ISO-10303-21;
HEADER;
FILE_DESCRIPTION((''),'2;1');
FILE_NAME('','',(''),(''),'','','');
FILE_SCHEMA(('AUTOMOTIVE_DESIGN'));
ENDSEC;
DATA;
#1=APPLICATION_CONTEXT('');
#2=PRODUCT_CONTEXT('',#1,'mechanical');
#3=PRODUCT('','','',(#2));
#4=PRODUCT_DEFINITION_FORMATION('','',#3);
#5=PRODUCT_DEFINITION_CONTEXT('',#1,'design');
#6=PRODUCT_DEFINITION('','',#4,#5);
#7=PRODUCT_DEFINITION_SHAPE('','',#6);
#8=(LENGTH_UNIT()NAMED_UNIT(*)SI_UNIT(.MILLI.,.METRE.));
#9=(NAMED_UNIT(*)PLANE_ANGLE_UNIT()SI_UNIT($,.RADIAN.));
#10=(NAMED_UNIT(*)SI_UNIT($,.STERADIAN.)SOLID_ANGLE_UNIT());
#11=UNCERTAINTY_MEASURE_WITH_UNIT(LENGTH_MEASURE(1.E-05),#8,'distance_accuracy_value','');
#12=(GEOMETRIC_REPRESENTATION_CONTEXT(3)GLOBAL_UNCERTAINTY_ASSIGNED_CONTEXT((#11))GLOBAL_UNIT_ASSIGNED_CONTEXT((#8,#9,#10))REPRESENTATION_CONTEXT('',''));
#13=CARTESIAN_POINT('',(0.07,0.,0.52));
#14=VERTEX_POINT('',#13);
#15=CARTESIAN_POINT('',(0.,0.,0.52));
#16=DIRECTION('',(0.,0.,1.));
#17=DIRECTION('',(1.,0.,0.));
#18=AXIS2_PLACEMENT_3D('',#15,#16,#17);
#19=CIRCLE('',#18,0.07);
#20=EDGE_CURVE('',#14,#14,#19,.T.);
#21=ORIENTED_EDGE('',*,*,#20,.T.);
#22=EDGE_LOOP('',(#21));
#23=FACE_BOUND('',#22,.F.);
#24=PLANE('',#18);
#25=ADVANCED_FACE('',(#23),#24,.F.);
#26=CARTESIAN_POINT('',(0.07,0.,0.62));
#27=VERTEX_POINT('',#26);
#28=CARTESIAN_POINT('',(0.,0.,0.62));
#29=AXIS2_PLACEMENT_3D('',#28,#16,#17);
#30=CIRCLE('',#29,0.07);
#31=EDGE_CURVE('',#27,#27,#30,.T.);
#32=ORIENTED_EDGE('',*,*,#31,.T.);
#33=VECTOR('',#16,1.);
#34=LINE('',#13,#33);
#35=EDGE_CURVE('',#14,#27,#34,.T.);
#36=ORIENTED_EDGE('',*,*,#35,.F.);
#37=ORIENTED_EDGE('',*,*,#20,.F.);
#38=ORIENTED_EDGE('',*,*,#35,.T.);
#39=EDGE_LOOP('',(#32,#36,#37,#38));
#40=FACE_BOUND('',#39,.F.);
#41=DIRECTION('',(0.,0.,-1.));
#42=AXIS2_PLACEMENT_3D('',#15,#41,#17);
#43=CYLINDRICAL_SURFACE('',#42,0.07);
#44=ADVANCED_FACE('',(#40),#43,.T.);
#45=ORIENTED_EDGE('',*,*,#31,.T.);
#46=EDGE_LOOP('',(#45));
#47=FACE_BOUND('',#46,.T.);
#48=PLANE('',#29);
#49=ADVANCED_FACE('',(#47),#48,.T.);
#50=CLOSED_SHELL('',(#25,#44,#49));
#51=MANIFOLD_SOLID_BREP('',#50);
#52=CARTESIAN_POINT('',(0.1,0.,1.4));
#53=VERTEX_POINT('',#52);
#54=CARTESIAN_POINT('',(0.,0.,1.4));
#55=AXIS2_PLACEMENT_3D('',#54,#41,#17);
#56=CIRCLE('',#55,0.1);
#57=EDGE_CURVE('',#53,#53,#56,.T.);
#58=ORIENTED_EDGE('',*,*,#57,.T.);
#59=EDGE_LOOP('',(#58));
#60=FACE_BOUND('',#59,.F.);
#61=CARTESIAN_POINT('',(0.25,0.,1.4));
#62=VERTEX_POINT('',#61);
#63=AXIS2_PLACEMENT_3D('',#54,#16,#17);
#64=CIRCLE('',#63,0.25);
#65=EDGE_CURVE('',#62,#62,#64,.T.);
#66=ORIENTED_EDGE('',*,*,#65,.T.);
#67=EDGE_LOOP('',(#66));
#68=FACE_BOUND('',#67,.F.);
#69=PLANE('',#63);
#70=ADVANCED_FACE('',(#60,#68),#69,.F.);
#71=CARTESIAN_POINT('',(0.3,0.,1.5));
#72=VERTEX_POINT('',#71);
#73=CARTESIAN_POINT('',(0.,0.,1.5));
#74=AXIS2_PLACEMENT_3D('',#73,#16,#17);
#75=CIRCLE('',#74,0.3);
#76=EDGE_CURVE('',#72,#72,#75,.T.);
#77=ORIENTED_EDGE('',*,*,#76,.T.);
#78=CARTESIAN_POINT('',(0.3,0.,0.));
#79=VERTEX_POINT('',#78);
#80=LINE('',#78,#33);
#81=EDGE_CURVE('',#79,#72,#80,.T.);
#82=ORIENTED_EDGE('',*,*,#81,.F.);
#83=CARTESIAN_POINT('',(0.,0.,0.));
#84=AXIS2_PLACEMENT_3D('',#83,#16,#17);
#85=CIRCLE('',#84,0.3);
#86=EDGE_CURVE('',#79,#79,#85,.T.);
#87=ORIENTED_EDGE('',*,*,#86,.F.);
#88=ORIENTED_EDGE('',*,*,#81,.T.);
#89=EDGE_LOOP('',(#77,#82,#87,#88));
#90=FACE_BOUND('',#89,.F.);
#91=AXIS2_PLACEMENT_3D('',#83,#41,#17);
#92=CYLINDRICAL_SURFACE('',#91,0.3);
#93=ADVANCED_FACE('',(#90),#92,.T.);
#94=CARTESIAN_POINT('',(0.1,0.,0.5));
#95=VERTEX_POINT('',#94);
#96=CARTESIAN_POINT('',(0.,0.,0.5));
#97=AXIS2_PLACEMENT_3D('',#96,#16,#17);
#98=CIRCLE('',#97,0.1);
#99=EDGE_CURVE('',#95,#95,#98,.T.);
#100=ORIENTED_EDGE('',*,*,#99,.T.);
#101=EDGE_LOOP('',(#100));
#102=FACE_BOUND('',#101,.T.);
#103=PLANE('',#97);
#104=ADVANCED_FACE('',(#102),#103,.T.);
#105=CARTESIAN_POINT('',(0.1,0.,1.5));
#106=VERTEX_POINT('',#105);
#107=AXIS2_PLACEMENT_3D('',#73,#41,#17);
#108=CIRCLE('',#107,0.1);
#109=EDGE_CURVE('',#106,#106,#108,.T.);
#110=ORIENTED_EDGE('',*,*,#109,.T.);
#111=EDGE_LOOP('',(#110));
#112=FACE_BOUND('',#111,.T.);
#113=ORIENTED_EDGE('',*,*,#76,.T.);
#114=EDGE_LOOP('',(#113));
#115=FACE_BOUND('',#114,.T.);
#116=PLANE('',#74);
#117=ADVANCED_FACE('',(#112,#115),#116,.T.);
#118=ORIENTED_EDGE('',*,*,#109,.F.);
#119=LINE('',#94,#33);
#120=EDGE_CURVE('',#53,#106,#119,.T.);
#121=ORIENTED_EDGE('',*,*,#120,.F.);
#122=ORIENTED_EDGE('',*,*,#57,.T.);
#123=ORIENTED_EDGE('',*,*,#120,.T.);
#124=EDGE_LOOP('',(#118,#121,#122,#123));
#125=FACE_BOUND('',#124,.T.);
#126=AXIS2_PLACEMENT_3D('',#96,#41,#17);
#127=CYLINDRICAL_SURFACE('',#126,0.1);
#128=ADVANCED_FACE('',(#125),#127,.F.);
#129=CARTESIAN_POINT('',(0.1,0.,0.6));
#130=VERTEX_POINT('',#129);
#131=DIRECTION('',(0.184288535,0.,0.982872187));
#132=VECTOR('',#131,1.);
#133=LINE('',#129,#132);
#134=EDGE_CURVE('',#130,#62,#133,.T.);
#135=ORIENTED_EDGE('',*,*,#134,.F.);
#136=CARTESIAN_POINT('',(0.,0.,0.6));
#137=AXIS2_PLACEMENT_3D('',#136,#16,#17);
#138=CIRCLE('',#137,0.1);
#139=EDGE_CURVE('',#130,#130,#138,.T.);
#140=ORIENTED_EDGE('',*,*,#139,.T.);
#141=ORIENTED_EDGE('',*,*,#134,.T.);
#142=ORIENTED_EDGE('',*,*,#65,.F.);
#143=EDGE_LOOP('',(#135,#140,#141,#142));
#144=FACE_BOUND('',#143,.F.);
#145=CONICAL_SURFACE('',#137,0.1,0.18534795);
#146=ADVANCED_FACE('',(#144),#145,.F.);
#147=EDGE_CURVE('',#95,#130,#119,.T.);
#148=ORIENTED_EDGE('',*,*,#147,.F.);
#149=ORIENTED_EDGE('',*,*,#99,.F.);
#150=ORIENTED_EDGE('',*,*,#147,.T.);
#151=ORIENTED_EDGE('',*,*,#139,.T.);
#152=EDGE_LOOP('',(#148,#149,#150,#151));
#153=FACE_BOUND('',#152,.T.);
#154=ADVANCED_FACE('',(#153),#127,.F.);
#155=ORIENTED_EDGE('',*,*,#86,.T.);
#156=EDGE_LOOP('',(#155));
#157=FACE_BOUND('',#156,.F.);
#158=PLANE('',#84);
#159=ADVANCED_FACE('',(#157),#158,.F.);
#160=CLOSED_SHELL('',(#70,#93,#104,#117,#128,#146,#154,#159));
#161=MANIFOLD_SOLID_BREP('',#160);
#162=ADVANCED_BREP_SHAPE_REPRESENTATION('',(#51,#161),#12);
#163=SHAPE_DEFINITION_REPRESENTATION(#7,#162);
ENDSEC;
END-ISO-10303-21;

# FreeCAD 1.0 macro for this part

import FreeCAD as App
import Part
import Sketcher

doc = App.newDocument("Part")
body = doc.addObject("PartDesign::Body", "Body")

# Sketch on XY plane
sketch1 = body.newObject("Sketcher::SketchObject", "Sketch")
sketch1.AttachmentSupport = (doc.getObject("XY_Plane"), [""])
sketch1.MapMode = "FlatFace"
sketch1.AttachmentOffset = App.Placement(App.Vector(0, 0, 0.52), App.Rotation())
sketch1.addGeometry(Part.Circle(App.Vector(0, 0, 0), App.Vector(0, 0, 1), 0.07), False)
sketch1.addConstraint([
    Sketcher.Constraint("Coincident", 0, 3, -1, 1),
    Sketcher.Constraint("Diameter", 0, 0.14),
])
pad1 = body.newObject("PartDesign::Pad", "Pad")
pad1.Profile = sketch1
pad1.Length = 0.1
body2 = doc.addObject("PartDesign::Body", "Body001")

# Sketch on XY plane
sketch2 = body2.newObject("Sketcher::SketchObject", "Sketch001")
sketch2.AttachmentSupport = (doc.getObject("XY_Plane001"), [""])
sketch2.MapMode = "FlatFace"
sketch2.AttachmentOffset = App.Placement(App.Vector(0, 0, 0.5), App.Rotation())
sketch2.addGeometry(Part.Circle(App.Vector(0, 0, 0), App.Vector(0, 0, 1), 0.1), False)
sketch2.addConstraint([
    Sketcher.Constraint("Coincident", 0, 3, -1, 1),
    Sketcher.Constraint("Diameter", 0, 0.2),
])
pad2 = body2.newObject("PartDesign::Pad", "Pad001")
pad2.Profile = sketch2
pad2.Length = 2
body3 = doc.addObject("PartDesign::Body", "Body002")

# Sketch on XZ plane
sketch3 = body3.newObject("Sketcher::SketchObject", "Sketch002")
sketch3.AttachmentSupport = (doc.getObject("XZ_Plane002"), [""])
sketch3.MapMode = "FlatFace"
sketch3.addGeometry([
    Part.LineSegment(App.Vector(0, 0.6, 0), App.Vector(0.1, 0.6, 0)),
    Part.LineSegment(App.Vector(0.1, 0.6, 0), App.Vector(0.25, 1.4, 0)),
    Part.LineSegment(App.Vector(0.25, 1.4, 0), App.Vector(0, 1.4, 0)),
    Part.LineSegment(App.Vector(0, 1.4, 0), App.Vector(0, 0.6, 0)),
], False)
sketch3.addConstraint([
    Sketcher.Constraint("Coincident", 0, 2, 1, 1),
    Sketcher.Constraint("Coincident", 1, 2, 2, 1),
    Sketcher.Constraint("Coincident", 2, 2, 3, 1),
    Sketcher.Constraint("Coincident", 3, 2, 0, 1),
    Sketcher.Constraint("Horizontal", 0),
    Sketcher.Constraint("Horizontal", 2),
    Sketcher.Constraint("Vertical", 3),
    Sketcher.Constraint("PointOnObject", 2, 2, -2),
    Sketcher.Constraint("DistanceX", 0, 1, 0, 2, 0.1),
    Sketcher.Constraint("DistanceY", 3, 2, 3, 1, 0.8),
    Sketcher.Constraint("DistanceX", 2, 2, 2, 1, 0.25),
    Sketcher.Constraint("DistanceY", -1, 1, 0, 2, 0.6),
])
revolution = body3.newObject("PartDesign::Revolution", "Revolution")
revolution.Profile = sketch3
revolution.ReferenceAxis = (sketch3, ["V_Axis"])
revolution.Angle = 360
doc.recompute()

boolean = body3.newObject("PartDesign::Boolean", "Boolean")
boolean.Type = "Fuse"
boolean.addObjects([body2])
body4 = doc.addObject("PartDesign::Body", "Body003")

# Sketch on XY plane
sketch4 = body4.newObject("Sketcher::SketchObject", "Sketch003")
sketch4.AttachmentSupport = (doc.getObject("XY_Plane003"), [""])
sketch4.MapMode = "FlatFace"
sketch4.addGeometry(Part.Circle(App.Vector(0, 0, 0), App.Vector(0, 0, 1), 0.3), False)
sketch4.addConstraint([
    Sketcher.Constraint("Coincident", 0, 3, -1, 1),
    Sketcher.Constraint("Diameter", 0, 0.6),
])
pad3 = body4.newObject("PartDesign::Pad", "Pad002")
pad3.Profile = sketch4
pad3.Length = 1.5
doc.recompute()

boolean2 = body4.newObject("PartDesign::Boolean", "Boolean001")
boolean2.Type = "Cut"
boolean2.addObjects([body3])

doc.recompute()
